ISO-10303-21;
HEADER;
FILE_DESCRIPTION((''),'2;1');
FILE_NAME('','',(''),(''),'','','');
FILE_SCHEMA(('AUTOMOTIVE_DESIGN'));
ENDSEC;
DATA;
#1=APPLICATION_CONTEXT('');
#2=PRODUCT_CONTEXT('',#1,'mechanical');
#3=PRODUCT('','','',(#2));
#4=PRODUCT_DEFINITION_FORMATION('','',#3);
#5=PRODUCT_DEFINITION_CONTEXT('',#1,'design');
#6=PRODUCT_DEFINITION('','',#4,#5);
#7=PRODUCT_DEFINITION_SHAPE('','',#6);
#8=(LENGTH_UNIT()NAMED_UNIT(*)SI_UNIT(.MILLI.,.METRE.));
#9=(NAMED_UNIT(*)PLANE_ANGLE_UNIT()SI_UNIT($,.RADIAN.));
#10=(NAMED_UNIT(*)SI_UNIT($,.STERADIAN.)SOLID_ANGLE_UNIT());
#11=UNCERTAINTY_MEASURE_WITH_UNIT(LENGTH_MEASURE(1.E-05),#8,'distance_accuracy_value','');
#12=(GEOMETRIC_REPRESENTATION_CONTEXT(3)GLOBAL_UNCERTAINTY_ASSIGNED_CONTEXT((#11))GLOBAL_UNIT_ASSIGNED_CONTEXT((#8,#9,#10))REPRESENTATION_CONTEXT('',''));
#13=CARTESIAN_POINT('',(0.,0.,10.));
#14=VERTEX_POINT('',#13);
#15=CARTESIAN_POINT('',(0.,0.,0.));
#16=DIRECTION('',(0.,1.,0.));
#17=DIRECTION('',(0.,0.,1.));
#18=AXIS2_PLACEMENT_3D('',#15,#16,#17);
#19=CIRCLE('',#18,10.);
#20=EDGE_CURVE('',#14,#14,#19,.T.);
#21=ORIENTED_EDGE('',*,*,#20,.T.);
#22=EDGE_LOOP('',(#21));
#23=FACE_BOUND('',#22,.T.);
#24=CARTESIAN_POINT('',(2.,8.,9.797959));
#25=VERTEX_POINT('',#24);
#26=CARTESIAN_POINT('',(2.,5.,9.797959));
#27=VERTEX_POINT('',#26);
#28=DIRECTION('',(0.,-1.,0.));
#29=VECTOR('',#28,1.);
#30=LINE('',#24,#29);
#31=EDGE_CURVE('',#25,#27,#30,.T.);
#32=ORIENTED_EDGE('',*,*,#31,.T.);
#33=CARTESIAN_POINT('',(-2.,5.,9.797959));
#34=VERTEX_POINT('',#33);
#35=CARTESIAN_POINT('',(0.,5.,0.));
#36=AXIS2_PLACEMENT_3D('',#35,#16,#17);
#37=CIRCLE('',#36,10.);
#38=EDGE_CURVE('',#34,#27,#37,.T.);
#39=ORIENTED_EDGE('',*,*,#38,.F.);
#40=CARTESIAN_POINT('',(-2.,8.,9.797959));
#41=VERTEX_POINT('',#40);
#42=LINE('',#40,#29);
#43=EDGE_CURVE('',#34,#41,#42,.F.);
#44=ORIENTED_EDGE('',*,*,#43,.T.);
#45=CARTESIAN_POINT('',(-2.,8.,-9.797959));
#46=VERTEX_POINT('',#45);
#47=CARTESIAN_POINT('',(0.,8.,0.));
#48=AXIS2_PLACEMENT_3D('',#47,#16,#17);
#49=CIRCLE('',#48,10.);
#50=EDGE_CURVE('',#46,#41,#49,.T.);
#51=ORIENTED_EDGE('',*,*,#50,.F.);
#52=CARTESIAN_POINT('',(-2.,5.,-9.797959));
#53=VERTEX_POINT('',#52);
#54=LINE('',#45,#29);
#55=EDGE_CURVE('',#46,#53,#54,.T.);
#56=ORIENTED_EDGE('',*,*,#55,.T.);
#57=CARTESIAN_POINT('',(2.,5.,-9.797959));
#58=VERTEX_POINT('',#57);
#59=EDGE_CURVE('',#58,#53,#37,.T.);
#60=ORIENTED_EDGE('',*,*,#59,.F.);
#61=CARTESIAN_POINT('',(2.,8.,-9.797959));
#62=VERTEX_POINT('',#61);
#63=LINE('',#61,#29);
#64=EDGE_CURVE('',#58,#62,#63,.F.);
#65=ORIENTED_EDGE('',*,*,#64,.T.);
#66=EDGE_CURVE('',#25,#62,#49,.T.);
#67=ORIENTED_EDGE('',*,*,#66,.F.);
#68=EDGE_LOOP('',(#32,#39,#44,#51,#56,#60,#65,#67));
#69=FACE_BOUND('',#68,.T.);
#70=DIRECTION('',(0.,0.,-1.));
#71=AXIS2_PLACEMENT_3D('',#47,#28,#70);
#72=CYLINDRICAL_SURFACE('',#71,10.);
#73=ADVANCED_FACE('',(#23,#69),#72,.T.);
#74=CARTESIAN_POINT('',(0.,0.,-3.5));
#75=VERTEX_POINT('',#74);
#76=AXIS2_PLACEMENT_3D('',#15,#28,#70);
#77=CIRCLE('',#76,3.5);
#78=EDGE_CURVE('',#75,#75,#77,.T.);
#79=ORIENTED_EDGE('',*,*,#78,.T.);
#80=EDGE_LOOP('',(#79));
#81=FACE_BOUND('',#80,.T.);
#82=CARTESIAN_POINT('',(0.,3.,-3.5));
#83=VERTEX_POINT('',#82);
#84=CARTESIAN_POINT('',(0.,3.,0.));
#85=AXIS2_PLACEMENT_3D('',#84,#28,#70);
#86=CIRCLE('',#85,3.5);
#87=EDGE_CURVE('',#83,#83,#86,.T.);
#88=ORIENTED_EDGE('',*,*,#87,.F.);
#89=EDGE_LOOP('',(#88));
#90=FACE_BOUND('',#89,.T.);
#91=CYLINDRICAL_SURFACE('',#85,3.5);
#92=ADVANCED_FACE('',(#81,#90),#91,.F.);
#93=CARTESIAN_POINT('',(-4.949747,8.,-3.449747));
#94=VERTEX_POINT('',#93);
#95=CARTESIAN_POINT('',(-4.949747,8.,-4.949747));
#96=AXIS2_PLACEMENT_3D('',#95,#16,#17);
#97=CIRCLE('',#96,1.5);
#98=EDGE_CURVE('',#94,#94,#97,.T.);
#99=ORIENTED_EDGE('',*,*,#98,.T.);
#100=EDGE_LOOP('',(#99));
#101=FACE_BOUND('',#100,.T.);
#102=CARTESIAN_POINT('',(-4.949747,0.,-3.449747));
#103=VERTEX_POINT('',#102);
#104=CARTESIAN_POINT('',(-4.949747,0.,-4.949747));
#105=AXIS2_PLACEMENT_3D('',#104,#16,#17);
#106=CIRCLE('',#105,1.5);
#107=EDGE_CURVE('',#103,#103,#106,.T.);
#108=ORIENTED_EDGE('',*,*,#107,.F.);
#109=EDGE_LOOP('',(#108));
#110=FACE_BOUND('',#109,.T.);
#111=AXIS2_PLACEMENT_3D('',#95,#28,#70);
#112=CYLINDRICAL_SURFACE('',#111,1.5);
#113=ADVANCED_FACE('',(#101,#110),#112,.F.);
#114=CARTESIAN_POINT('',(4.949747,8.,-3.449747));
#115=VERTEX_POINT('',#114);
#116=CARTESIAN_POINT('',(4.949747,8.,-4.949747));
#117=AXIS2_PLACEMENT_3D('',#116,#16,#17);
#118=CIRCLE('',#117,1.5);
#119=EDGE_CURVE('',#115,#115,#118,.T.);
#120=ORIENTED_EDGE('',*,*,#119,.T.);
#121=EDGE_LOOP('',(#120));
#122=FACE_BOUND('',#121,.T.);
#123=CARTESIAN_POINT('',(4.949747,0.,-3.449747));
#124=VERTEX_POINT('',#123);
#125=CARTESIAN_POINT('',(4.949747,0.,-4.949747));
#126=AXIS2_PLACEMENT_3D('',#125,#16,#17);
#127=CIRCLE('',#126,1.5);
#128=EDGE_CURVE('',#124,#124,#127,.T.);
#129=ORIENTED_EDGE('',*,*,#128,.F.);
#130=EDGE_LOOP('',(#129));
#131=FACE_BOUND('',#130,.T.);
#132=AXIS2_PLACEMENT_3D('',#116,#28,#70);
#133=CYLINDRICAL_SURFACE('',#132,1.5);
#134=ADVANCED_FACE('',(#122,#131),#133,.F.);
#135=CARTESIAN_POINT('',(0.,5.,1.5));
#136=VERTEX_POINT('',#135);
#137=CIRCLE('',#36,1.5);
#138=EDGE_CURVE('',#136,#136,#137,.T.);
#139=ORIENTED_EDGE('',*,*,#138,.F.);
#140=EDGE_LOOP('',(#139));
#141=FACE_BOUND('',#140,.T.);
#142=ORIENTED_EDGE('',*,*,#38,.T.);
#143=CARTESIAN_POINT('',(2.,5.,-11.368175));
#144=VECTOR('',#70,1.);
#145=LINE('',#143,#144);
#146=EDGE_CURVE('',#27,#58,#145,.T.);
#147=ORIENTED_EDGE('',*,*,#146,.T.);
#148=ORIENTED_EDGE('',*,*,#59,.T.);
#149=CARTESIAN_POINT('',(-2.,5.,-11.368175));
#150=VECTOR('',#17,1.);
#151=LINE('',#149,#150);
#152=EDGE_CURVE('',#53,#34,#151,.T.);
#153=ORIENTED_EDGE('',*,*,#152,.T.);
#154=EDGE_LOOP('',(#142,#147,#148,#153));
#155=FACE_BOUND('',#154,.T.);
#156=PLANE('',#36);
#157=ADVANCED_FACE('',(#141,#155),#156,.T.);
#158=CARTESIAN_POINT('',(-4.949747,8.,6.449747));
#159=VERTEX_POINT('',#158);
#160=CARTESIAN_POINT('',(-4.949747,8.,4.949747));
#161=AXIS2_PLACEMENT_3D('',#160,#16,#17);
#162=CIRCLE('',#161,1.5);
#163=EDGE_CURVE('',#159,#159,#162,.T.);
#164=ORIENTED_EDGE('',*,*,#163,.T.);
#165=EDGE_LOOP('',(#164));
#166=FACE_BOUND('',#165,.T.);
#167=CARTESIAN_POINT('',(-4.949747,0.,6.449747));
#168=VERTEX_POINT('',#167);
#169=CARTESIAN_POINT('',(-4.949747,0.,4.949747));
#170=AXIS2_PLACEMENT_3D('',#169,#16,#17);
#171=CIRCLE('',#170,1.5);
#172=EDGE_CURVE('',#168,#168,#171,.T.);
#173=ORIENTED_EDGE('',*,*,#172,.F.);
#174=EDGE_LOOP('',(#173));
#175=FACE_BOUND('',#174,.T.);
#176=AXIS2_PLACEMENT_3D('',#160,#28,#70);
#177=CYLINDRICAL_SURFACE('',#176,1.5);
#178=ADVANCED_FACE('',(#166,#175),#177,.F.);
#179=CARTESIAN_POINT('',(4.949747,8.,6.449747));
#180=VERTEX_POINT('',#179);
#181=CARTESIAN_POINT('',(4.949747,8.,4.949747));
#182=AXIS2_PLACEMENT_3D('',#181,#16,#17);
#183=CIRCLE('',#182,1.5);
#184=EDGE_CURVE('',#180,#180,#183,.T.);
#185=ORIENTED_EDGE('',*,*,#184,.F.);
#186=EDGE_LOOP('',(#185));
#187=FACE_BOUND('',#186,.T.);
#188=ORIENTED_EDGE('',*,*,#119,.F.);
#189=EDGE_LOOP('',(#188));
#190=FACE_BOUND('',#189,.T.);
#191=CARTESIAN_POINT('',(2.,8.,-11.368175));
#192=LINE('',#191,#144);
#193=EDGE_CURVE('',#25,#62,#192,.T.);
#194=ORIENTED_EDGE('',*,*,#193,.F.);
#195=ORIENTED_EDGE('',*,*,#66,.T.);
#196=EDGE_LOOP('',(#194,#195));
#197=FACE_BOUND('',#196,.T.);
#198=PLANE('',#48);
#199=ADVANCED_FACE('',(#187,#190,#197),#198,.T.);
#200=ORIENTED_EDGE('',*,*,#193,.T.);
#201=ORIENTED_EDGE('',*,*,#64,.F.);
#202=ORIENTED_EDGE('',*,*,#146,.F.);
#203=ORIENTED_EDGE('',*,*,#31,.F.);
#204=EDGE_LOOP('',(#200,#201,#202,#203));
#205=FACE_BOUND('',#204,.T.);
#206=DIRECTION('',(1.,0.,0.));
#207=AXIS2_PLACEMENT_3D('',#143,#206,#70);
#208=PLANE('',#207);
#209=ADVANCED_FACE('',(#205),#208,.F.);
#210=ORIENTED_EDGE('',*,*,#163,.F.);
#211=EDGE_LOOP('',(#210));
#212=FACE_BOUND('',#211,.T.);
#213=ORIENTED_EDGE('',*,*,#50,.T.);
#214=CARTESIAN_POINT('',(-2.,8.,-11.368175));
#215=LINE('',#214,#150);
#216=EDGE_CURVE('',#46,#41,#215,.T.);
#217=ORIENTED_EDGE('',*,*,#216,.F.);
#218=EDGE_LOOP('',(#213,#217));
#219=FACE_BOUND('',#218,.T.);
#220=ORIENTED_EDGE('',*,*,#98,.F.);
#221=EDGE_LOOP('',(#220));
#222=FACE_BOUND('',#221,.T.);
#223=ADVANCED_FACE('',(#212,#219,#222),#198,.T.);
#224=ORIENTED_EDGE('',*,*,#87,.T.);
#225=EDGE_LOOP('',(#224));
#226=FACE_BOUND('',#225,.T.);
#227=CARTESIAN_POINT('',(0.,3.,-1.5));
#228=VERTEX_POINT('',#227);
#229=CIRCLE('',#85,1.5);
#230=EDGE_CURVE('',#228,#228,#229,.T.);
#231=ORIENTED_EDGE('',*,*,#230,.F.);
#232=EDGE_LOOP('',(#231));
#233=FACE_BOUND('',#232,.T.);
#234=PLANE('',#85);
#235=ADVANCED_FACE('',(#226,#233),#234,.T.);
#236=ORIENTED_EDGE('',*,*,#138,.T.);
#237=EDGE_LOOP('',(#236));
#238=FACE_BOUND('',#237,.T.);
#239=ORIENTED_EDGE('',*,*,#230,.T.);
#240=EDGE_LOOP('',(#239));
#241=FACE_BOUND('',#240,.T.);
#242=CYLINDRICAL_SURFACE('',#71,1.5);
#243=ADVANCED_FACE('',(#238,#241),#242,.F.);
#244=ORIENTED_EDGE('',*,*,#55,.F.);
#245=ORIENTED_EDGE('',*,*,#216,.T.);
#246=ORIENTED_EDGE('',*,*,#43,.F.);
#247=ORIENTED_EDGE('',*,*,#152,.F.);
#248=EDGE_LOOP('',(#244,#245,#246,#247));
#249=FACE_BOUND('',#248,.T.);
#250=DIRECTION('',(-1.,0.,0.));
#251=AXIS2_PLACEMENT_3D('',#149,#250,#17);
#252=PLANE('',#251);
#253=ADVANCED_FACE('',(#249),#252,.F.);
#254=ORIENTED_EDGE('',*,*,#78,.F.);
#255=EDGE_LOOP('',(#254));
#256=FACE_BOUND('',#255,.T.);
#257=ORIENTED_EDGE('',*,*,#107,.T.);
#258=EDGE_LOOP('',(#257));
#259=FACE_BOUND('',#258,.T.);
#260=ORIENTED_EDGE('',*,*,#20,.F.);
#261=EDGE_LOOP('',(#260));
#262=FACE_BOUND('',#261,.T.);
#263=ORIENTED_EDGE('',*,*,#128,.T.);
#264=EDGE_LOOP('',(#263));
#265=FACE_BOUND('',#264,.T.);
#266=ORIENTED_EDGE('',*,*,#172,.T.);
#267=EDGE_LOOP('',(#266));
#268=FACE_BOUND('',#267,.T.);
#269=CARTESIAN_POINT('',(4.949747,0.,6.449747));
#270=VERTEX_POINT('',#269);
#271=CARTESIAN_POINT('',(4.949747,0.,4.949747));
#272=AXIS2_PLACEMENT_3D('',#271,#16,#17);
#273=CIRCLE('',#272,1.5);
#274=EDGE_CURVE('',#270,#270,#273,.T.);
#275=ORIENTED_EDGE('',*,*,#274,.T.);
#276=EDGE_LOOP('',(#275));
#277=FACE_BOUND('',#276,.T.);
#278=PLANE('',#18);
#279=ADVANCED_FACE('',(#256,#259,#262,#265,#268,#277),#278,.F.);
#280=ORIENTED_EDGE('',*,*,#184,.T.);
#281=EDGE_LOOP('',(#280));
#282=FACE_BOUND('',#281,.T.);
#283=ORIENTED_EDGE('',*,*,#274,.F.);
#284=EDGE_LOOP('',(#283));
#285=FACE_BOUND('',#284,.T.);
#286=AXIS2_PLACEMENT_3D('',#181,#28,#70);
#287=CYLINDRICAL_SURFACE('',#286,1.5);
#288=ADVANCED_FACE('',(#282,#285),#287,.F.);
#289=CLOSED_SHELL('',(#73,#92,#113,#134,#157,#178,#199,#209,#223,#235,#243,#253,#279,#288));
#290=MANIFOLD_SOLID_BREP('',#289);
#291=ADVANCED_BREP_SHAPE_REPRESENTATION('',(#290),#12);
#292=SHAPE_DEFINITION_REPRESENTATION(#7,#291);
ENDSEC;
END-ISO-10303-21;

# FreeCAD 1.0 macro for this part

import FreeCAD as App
import Part
import Sketcher

V = App.Vector

doc = App.newDocument("Part")
params = doc.addObject("Spreadsheet::Sheet", "Params")
for row, (alias, value) in enumerate([
    ("sketch1_diameter", "20 mm"),
    ("sketch1_diameter2", "3 mm"),
    ("pad1_length", "8 mm"),
    ("sketch2_width", "4 mm"),
    ("pocket1_length", "3 mm"),
    ("sketch3_diameter", "7 mm"),
    ("pocket2_length", "3 mm"),
], start=1):
    params.set(f"A{row}", alias)
    params.set(f"B{row}", "=" + value)
    params.setAlias(f"B{row}", alias)

body = doc.addObject("PartDesign::Body", "Body")

sketch1 = doc.addObject("Sketcher::SketchObject", "Sketch")
body.addObject(sketch1)
sketch1.AttachmentSupport = (doc.XZ_Plane, [""])
sketch1.MapMode = "FlatFace"
sketch1.addGeometry([
    Part.Circle(V(0, 0, 0), V(0, 0, 1), 10),
    Part.Circle(V(-4.9, 4.9, 0), V(0, 0, 1), 1.5),
    Part.Circle(V(4.9, 4.9, 0), V(0, 0, 1), 1.5),
    Part.Circle(V(-4.9, -4.9, 0), V(0, 0, 1), 1.5),
    Part.Circle(V(0, 0, 0), V(0, 0, 1), 1.5),
    Part.Circle(V(4.9, -4.9, 0), V(0, 0, 1), 1.5),
], False)
sketch1.addConstraint([
    Sketcher.Constraint("Coincident", 0, 3, -1, 1),
    Sketcher.Constraint("Coincident", 4, 3, -1, 1),
    Sketcher.Constraint("Equal", 1, 2),
    Sketcher.Constraint("Equal", 2, 3),
    Sketcher.Constraint("Equal", 3, 4),
    Sketcher.Constraint("Equal", 4, 5),
    Sketcher.Constraint("Symmetric", 2, 3, 3, 3, -1, 1),
    Sketcher.Constraint("Symmetric", 1, 3, 5, 3, -1, 1),
    Sketcher.Constraint("Symmetric", 1, 3, 2, 3, -2),
    Sketcher.Constraint("Diameter", 0, 20.0),
    Sketcher.Constraint("Diameter", 1, 3.0),
    Sketcher.Constraint("DistanceX", 1, 3, -1, 1, 4.949747),
    Sketcher.Constraint("DistanceY", -1, 1, 1, 3, 4.949747),
])
sketch1.setExpression("Constraints[9]", "Params.sketch1_diameter")
sketch1.setExpression("Constraints[10]", "Params.sketch1_diameter2")
pad1 = doc.addObject("PartDesign::Pad", "Pad")
body.addObject(pad1)
pad1.Profile = sketch1
pad1.setExpression("Length", "Params.pad1_length")
pad1.Reversed = True

sketch2 = doc.addObject("Sketcher::SketchObject", "Sketch001")
body.addObject(sketch2)
sketch2.AttachmentSupport = (doc.XZ_Plane, [""])
sketch2.MapMode = "FlatFace"
sketch2.AttachmentOffset = App.Placement(V(0, 0, -8), App.Rotation())
sketch2.addGeometry([
    Part.LineSegment(V(-2, -11.4, 0), V(-2, 11.4, 0)),
    Part.LineSegment(V(-2, 11.4, 0), V(2, 11.4, 0)),
    Part.LineSegment(V(2, 11.4, 0), V(2, -11.4, 0)),
    Part.LineSegment(V(2, -11.4, 0), V(-2, -11.4, 0)),
], False)
sketch2.addConstraint([
    Sketcher.Constraint("Coincident", 0, 2, 1, 1),
    Sketcher.Constraint("Coincident", 1, 2, 2, 1),
    Sketcher.Constraint("Coincident", 2, 2, 3, 1),
    Sketcher.Constraint("Coincident", 3, 2, 0, 1),
    Sketcher.Constraint("Vertical", 0),
    Sketcher.Constraint("Horizontal", 1),
    Sketcher.Constraint("Vertical", 2),
    Sketcher.Constraint("Horizontal", 3),
    Sketcher.Constraint("Symmetric", 0, 2, 2, 2, -1, 1),
    Sketcher.Constraint("DistanceX", 1, 1, 1, 2, 4.0),
    Sketcher.Constraint("DistanceY", 0, 1, 0, 2, 22.73635),
])
sketch2.setExpression("Constraints[9]", "Params.sketch2_width")
pocket1 = doc.addObject("PartDesign::Pocket", "Pocket")
body.addObject(pocket1)
pocket1.Profile = sketch2
pocket1.setExpression("Length", "Params.pocket1_length")
pocket1.Reversed = True

sketch3 = doc.addObject("Sketcher::SketchObject", "Sketch002")
body.addObject(sketch3)
sketch3.AttachmentSupport = (doc.XZ_Plane, [""])
sketch3.MapMode = "FlatFace"
sketch3.addGeometry(Part.Circle(V(0, 0, 0), V(0, 0, 1), 3.5), False)
sketch3.addConstraint([
    Sketcher.Constraint("Coincident", 0, 3, -1, 1),
    Sketcher.Constraint("Diameter", 0, 7.0),
])
sketch3.setExpression("Constraints[1]", "Params.sketch3_diameter")
pocket2 = doc.addObject("PartDesign::Pocket", "Pocket001")
body.addObject(pocket2)
pocket2.Profile = sketch3
pocket2.setExpression("Length", "Params.pocket2_length")

doc.recompute()
